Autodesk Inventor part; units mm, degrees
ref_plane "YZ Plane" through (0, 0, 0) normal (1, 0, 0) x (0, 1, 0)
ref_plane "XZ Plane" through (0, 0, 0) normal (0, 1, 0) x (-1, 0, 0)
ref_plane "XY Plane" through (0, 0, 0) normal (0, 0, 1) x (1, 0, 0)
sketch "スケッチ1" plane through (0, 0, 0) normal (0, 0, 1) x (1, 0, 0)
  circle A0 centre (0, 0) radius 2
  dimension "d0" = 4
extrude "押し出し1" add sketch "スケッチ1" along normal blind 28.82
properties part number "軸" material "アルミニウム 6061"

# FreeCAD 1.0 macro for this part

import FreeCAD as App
import Part
import Sketcher

doc = App.newDocument("Part")
body = doc.addObject("PartDesign::Body", "Body")

# Sketch on XY plane
sketch1 = doc.addObject("Sketcher::SketchObject", "Sketch")
body.addObject(sketch1)
sketch1.AttachmentSupport = (doc.XY_Plane, [""])
sketch1.MapMode = "FlatFace"
sketch1.addGeometry(Part.Circle(App.Vector(0, 0, 0), App.Vector(0, 0, 1), 2), False)
sketch1.addConstraint([
    Sketcher.Constraint("Coincident", 0, 3, -1, 1),
    Sketcher.Constraint("Diameter", 0, 4.0),
])
pad1 = doc.addObject("PartDesign::Pad", "Pad")
body.addObject(pad1)
pad1.Profile = sketch1
pad1.Length = 28.82

doc.recompute()
